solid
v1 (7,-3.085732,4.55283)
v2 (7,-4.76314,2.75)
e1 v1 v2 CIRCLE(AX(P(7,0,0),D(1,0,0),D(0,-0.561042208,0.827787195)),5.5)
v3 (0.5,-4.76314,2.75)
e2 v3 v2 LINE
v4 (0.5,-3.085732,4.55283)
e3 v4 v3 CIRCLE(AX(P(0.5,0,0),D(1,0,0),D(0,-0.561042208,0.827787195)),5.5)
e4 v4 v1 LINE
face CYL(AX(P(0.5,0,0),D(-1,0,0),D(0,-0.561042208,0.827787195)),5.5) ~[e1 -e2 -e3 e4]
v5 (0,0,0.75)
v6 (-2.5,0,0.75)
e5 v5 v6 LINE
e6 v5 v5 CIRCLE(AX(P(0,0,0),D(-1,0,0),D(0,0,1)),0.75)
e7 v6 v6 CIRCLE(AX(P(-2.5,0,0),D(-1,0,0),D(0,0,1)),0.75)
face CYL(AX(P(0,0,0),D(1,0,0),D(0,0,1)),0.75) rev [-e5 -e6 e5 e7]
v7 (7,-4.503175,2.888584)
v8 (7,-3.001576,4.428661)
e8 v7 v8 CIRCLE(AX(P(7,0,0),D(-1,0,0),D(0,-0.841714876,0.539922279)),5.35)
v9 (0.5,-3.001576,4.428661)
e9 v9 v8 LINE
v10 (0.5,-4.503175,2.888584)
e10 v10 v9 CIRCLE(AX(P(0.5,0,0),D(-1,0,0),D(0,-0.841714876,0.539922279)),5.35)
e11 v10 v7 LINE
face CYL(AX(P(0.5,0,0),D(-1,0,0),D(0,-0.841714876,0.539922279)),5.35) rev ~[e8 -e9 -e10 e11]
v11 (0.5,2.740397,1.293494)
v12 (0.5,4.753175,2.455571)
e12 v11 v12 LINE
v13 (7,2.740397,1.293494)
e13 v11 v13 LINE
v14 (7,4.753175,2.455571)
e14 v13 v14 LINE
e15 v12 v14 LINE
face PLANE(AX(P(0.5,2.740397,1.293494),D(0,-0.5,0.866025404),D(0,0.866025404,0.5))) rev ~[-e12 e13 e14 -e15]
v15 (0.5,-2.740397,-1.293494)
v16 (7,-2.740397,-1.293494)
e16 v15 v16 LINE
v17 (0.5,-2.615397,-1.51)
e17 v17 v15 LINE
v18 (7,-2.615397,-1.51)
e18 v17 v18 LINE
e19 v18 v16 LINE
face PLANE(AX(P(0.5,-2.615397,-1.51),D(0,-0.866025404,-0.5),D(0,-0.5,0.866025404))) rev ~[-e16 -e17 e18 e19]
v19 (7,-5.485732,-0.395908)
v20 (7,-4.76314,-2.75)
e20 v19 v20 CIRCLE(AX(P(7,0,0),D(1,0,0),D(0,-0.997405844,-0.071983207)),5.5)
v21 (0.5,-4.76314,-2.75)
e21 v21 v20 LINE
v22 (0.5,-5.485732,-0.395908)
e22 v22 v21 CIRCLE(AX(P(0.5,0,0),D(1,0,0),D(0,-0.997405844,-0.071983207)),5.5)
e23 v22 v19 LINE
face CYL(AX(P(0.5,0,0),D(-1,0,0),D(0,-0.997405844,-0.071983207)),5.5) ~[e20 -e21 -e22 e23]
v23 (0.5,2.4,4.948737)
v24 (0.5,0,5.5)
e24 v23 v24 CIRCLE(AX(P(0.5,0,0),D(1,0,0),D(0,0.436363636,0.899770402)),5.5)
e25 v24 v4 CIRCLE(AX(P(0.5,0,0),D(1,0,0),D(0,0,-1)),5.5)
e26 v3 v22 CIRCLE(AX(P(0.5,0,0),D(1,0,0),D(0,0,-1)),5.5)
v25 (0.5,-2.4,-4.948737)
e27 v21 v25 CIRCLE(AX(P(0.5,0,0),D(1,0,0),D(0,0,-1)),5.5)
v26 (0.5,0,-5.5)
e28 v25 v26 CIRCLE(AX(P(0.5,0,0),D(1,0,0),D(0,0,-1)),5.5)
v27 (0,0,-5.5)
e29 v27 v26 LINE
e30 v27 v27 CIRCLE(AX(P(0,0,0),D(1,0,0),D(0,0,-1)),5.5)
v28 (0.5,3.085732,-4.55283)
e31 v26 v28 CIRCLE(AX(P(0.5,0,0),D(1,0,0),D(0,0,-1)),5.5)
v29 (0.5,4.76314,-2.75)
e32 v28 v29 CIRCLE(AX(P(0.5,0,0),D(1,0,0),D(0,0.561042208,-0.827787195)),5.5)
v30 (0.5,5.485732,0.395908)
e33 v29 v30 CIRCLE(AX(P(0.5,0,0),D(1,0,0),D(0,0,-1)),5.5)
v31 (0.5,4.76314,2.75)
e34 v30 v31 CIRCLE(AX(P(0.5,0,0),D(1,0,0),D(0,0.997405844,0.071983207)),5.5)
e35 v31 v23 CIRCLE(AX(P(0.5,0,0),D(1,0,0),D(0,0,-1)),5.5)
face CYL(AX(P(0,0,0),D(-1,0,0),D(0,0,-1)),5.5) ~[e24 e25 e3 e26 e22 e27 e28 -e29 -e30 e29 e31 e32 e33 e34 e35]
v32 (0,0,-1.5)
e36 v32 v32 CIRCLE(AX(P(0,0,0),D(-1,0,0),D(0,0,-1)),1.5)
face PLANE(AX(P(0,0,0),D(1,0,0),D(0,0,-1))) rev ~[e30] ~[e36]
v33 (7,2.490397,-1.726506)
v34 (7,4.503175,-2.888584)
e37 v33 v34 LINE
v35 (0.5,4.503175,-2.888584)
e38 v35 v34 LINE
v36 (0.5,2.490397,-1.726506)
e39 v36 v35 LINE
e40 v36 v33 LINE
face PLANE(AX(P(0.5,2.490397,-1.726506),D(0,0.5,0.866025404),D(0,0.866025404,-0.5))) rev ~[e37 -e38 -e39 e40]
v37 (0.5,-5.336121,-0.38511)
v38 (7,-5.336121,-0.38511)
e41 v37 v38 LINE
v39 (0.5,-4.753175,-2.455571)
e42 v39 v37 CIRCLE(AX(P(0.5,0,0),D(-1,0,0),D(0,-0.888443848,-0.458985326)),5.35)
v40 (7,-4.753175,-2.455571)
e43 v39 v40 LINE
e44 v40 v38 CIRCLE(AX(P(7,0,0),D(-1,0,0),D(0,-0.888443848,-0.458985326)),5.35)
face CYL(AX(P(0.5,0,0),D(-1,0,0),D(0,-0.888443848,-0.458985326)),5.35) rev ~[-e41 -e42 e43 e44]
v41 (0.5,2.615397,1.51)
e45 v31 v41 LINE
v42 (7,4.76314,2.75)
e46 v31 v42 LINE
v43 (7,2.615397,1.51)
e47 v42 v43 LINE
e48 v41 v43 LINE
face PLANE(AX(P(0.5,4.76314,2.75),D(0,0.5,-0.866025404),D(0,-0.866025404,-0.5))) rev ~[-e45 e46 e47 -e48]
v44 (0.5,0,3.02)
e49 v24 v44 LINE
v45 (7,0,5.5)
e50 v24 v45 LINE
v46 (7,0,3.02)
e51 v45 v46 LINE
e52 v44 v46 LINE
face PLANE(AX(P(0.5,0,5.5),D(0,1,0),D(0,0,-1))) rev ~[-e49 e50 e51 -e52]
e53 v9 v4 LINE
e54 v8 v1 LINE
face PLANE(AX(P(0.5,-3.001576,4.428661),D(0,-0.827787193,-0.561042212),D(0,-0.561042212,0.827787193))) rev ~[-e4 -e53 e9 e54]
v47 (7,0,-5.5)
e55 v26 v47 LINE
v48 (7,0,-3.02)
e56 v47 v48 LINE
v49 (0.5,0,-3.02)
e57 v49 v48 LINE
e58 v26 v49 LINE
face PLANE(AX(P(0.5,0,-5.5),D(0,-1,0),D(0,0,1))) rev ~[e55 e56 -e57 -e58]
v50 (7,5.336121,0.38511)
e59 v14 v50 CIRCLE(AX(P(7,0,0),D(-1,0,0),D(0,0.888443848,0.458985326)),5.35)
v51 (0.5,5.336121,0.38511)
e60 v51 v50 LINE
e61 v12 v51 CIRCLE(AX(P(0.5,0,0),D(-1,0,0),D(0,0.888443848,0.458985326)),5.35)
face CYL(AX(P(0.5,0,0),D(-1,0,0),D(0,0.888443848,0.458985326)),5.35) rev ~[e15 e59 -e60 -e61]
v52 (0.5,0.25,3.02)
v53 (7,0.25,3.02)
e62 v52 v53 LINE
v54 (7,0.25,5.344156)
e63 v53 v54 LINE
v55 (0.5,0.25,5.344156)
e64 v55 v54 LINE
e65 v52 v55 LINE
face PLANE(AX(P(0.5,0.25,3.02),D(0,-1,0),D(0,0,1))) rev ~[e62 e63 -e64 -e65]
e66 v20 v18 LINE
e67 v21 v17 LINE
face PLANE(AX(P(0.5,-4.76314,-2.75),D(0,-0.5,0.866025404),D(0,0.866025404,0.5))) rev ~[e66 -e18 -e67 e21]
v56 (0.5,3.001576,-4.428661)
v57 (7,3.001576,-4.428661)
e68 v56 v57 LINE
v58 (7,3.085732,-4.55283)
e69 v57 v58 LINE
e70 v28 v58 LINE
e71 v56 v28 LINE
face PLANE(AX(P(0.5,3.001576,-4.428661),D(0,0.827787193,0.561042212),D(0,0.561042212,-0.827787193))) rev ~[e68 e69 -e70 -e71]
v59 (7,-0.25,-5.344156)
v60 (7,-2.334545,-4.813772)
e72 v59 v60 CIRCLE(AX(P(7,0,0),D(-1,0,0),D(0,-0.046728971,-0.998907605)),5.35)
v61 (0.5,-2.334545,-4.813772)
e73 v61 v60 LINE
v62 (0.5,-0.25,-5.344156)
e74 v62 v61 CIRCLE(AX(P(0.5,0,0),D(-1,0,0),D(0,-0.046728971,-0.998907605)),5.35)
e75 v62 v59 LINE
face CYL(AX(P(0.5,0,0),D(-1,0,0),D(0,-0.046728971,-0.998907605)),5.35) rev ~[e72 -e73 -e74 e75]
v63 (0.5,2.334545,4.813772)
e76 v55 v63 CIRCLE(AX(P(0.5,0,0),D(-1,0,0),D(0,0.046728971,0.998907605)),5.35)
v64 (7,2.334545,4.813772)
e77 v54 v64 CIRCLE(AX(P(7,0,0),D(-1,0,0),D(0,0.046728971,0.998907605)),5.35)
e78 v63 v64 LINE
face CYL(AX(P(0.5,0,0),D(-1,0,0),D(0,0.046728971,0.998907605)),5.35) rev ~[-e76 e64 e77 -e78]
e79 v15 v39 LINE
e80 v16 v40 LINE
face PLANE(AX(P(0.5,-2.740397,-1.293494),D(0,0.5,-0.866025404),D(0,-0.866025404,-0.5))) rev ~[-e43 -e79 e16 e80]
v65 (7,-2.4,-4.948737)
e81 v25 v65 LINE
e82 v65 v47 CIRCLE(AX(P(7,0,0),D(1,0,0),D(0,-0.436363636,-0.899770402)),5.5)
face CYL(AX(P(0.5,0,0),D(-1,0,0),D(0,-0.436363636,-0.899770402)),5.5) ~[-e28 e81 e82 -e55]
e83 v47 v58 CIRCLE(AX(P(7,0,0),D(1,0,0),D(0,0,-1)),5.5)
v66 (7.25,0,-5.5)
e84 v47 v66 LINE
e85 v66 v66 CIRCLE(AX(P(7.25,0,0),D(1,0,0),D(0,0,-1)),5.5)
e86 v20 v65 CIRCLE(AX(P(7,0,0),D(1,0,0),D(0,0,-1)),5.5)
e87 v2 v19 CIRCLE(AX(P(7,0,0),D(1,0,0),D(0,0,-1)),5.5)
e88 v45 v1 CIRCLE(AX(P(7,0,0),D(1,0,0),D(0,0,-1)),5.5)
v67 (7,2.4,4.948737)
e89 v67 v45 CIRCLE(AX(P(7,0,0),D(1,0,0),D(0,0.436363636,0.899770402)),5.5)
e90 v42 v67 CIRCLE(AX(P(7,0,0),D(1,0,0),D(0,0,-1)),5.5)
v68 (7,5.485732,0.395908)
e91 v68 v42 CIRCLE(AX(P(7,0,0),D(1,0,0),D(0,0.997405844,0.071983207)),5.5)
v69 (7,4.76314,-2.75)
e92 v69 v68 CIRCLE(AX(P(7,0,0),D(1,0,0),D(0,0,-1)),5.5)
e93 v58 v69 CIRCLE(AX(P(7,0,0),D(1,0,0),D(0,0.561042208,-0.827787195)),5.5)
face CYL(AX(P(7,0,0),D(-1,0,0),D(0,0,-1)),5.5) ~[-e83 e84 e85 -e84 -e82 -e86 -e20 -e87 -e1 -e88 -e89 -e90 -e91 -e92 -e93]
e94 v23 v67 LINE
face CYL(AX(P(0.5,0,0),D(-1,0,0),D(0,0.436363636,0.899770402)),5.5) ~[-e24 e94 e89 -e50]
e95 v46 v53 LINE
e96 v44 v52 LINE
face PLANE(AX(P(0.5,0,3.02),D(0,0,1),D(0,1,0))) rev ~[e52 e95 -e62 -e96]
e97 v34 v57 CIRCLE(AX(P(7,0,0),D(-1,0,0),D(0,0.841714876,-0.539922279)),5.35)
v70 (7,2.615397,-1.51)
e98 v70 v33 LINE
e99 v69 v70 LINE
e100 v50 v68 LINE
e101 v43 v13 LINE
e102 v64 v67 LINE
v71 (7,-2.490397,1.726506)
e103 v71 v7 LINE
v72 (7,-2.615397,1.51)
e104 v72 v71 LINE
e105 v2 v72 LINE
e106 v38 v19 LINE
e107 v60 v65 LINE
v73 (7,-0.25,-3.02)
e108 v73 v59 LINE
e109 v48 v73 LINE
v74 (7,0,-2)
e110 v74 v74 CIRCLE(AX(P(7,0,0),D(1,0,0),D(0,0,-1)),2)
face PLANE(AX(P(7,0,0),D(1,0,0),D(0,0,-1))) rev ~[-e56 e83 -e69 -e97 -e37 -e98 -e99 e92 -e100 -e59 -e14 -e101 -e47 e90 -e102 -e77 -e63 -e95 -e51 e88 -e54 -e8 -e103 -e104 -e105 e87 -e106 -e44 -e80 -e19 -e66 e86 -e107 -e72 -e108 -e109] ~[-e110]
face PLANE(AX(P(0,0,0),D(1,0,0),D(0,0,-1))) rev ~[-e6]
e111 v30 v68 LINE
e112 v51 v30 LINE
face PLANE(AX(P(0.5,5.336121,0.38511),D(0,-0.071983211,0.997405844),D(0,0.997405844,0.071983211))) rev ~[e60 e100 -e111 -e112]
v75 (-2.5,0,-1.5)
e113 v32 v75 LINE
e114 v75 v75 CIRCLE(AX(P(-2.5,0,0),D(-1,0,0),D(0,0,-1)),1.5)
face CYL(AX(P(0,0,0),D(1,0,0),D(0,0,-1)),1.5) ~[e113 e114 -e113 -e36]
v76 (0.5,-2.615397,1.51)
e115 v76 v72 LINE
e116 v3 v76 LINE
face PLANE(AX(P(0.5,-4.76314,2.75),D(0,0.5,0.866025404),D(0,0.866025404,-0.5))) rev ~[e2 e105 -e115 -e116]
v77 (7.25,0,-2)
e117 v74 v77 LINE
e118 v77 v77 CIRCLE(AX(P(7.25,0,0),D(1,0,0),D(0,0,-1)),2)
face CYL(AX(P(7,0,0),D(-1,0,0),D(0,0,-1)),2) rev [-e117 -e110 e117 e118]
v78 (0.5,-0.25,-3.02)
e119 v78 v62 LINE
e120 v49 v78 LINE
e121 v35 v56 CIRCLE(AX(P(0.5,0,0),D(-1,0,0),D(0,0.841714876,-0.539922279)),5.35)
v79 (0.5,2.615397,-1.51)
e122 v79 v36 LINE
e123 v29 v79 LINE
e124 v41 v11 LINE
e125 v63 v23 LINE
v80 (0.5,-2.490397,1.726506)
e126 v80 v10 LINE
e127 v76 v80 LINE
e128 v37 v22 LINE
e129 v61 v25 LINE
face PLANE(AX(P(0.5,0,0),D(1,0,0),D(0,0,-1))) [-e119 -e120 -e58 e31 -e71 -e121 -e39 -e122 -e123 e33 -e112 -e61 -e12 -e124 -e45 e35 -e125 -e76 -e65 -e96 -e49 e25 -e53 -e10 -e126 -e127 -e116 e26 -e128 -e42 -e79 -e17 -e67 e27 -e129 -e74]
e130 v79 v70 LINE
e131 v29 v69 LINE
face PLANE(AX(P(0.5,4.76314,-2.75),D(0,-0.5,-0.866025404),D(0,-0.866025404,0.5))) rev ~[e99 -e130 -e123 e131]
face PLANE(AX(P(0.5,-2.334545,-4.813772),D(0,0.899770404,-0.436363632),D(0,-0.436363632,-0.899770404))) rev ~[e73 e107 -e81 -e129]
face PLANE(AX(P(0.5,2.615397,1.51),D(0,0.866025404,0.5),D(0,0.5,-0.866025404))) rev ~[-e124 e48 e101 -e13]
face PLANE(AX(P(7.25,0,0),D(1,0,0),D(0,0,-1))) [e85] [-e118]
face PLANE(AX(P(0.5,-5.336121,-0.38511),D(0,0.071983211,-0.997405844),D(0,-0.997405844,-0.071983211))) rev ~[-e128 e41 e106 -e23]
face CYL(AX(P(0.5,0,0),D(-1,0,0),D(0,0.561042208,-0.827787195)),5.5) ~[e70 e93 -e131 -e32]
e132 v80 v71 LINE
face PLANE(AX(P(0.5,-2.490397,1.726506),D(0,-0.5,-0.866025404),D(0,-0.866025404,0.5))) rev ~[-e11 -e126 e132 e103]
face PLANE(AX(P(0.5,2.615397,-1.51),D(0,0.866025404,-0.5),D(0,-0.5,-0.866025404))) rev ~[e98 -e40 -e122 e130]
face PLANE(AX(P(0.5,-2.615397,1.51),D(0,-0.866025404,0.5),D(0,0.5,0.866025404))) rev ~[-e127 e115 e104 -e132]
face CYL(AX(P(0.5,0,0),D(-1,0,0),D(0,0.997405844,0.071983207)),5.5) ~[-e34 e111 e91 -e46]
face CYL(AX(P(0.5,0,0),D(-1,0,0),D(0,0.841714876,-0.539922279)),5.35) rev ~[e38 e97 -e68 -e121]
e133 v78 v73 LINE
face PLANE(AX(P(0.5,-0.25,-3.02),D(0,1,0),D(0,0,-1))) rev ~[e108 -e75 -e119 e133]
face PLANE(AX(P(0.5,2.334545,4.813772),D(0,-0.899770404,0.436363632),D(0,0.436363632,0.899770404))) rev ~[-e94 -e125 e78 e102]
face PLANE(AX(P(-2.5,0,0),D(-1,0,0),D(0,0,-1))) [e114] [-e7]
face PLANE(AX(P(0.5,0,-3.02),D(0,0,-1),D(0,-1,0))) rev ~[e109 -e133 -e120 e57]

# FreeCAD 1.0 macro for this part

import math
import FreeCAD as App
import Part
import Sketcher
from FreeCAD import Vector

doc = App.newDocument("Part")
body = doc.addObject("PartDesign::Body", "Body")

# Sketch on YZ plane
sketch1 = body.newObject("Sketcher::SketchObject", "Sketch")
sketch1.AttachmentSupport = (doc.getObject("YZ_Plane"), [""])
sketch1.MapMode = "FlatFace"
sketch1.addGeometry(Part.Circle(Vector(0, 0, 0), Vector(0, 0, 1), 6), False)
sketch1.addConstraint(Sketcher.Constraint("Coincident", 0, 3, -1, 1))
sketch1.addConstraint(Sketcher.Constraint("Diameter", 0, 11.0))
pad1 = body.newObject("PartDesign::Pad", "Pad")
pad1.Profile = sketch1
pad1.Length = 0.5

# Sketch on YZ plane
sketch2 = body.newObject("Sketcher::SketchObject", "Sketch001")
sketch2.AttachmentSupport = (doc.getObject("YZ_Plane"), [""])
sketch2.MapMode = "FlatFace"
sketch2.AttachmentOffset = App.Placement(Vector(0, 0, 0.5), App.Rotation())
sketch2.addGeometry(Part.LineSegment(Vector(0, 5.5, 0), Vector(0, 3.02, 0)), False)
sketch2.addGeometry(Part.LineSegment(Vector(0, 3.02, 0), Vector(0.25, 3.02, 0)), False)
sketch2.addGeometry(Part.LineSegment(Vector(0.25, 3.02, 0), Vector(0.25, 5.34, 0)), False)
sketch2.addGeometry(Part.ArcOfCircle(Part.Circle(Vector(0, 0, 0), Vector(0, 0, 1), 5.35), math.radians(64), math.radians(87)), False)
sketch2.addGeometry(Part.LineSegment(Vector(2.33, 4.81, 0), Vector(2.4, 4.95, 0)), False)
sketch2.addGeometry(Part.ArcOfCircle(Part.Circle(Vector(0, 0, 0), Vector(0, 0, 1), 5.5), math.radians(64), math.radians(90)), False)
sketch2.addConstraint(Sketcher.Constraint("Coincident", 0, 2, 1, 1))
sketch2.addConstraint(Sketcher.Constraint("Coincident", 1, 2, 2, 1))
sketch2.addConstraint(Sketcher.Constraint("Coincident", 2, 2, 3, 2))
sketch2.addConstraint(Sketcher.Constraint("Coincident", 3, 1, 4, 1))
sketch2.addConstraint(Sketcher.Constraint("Coincident", 4, 2, 5, 1))
sketch2.addConstraint(Sketcher.Constraint("Coincident", 5, 2, 0, 1))
sketch2.addConstraint(Sketcher.Constraint("Vertical", 0))
sketch2.addConstraint(Sketcher.Constraint("Horizontal", 1))
sketch2.addConstraint(Sketcher.Constraint("Vertical", 2))
sketch2.addConstraint(Sketcher.Constraint("Coincident", 3, 3, -1, 1))
sketch2.addConstraint(Sketcher.Constraint("Coincident", 5, 3, -1, 1))
sketch2.addConstraint(Sketcher.Constraint("PointOnObject", 0, 2, -2))
sketch2.addConstraint(Sketcher.Constraint("Radius", 5, 5.5))
sketch2.addConstraint(Sketcher.Constraint("Radius", 3, 5.35))
sketch2.addConstraint(Sketcher.Constraint("DistanceX", 1, 1, 1, 2, 0.25))
sketch2.addConstraint(Sketcher.Constraint("DistanceY", 0, 2, 0, 1, 2.48))
sketch2.addConstraint(Sketcher.Constraint("DistanceX", -1, 1, 4, 2, 2.4))
sketch2.addConstraint(Sketcher.Constraint("DistanceY", -1, 1, 3, 1, 4.813772))
pad2 = body.newObject("PartDesign::Pad", "Pad001")
pad2.Profile = sketch2
pad2.Length = 6.5
doc.recompute()

polarpattern = body.newObject("PartDesign::PolarPattern", "PolarPattern")
polarpattern.Originals = [pad2]
polarpattern.Axis = (doc.getObject("X_Axis"), [""])
polarpattern.Angle = 360
polarpattern.Occurrences = 6
body.Tip = polarpattern

# Sketch on YZ plane
sketch3 = body.newObject("Sketcher::SketchObject", "Sketch002")
sketch3.AttachmentSupport = (doc.getObject("YZ_Plane"), [""])
sketch3.MapMode = "FlatFace"
sketch3.AttachmentOffset = App.Placement(Vector(0, 0, 7), App.Rotation())
sketch3.addGeometry(Part.Circle(Vector(0, 0, 0), Vector(0, 0, 1), 5.5), False)
sketch3.addGeometry(Part.Circle(Vector(0, 0, 0), Vector(0, 0, 1), 2), False)
sketch3.addConstraint(Sketcher.Constraint("Coincident", 0, 3, -1, 1))
sketch3.addConstraint(Sketcher.Constraint("Coincident", 1, 3, -1, 1))
sketch3.addConstraint(Sketcher.Constraint("Diameter", 0, 11.0))
sketch3.addConstraint(Sketcher.Constraint("Diameter", 1, 4.0))
pad3 = body.newObject("PartDesign::Pad", "Pad002")
pad3.Profile = sketch3
pad3.Length = 0.25

# Sketch on YZ plane
sketch4 = body.newObject("Sketcher::SketchObject", "Sketch003")
sketch4.AttachmentSupport = (doc.getObject("YZ_Plane"), [""])
sketch4.MapMode = "FlatFace"
sketch4.addGeometry(Part.Circle(Vector(0, 0, 0), Vector(0, 0, 1), 1.5), False)
sketch4.addGeometry(Part.Circle(Vector(0, 0, 0), Vector(0, 0, 1), 0.8), False)
sketch4.addConstraint(Sketcher.Constraint("Coincident", 0, 3, -1, 1))
sketch4.addConstraint(Sketcher.Constraint("Coincident", 1, 3, -1, 1))
sketch4.addConstraint(Sketcher.Constraint("Diameter", 0, 3.0))
sketch4.addConstraint(Sketcher.Constraint("Diameter", 1, 1.5))
pad4 = body.newObject("PartDesign::Pad", "Pad003")
pad4.Profile = sketch4
pad4.Length = 2.5
pad4.Reversed = True

doc.recompute()
